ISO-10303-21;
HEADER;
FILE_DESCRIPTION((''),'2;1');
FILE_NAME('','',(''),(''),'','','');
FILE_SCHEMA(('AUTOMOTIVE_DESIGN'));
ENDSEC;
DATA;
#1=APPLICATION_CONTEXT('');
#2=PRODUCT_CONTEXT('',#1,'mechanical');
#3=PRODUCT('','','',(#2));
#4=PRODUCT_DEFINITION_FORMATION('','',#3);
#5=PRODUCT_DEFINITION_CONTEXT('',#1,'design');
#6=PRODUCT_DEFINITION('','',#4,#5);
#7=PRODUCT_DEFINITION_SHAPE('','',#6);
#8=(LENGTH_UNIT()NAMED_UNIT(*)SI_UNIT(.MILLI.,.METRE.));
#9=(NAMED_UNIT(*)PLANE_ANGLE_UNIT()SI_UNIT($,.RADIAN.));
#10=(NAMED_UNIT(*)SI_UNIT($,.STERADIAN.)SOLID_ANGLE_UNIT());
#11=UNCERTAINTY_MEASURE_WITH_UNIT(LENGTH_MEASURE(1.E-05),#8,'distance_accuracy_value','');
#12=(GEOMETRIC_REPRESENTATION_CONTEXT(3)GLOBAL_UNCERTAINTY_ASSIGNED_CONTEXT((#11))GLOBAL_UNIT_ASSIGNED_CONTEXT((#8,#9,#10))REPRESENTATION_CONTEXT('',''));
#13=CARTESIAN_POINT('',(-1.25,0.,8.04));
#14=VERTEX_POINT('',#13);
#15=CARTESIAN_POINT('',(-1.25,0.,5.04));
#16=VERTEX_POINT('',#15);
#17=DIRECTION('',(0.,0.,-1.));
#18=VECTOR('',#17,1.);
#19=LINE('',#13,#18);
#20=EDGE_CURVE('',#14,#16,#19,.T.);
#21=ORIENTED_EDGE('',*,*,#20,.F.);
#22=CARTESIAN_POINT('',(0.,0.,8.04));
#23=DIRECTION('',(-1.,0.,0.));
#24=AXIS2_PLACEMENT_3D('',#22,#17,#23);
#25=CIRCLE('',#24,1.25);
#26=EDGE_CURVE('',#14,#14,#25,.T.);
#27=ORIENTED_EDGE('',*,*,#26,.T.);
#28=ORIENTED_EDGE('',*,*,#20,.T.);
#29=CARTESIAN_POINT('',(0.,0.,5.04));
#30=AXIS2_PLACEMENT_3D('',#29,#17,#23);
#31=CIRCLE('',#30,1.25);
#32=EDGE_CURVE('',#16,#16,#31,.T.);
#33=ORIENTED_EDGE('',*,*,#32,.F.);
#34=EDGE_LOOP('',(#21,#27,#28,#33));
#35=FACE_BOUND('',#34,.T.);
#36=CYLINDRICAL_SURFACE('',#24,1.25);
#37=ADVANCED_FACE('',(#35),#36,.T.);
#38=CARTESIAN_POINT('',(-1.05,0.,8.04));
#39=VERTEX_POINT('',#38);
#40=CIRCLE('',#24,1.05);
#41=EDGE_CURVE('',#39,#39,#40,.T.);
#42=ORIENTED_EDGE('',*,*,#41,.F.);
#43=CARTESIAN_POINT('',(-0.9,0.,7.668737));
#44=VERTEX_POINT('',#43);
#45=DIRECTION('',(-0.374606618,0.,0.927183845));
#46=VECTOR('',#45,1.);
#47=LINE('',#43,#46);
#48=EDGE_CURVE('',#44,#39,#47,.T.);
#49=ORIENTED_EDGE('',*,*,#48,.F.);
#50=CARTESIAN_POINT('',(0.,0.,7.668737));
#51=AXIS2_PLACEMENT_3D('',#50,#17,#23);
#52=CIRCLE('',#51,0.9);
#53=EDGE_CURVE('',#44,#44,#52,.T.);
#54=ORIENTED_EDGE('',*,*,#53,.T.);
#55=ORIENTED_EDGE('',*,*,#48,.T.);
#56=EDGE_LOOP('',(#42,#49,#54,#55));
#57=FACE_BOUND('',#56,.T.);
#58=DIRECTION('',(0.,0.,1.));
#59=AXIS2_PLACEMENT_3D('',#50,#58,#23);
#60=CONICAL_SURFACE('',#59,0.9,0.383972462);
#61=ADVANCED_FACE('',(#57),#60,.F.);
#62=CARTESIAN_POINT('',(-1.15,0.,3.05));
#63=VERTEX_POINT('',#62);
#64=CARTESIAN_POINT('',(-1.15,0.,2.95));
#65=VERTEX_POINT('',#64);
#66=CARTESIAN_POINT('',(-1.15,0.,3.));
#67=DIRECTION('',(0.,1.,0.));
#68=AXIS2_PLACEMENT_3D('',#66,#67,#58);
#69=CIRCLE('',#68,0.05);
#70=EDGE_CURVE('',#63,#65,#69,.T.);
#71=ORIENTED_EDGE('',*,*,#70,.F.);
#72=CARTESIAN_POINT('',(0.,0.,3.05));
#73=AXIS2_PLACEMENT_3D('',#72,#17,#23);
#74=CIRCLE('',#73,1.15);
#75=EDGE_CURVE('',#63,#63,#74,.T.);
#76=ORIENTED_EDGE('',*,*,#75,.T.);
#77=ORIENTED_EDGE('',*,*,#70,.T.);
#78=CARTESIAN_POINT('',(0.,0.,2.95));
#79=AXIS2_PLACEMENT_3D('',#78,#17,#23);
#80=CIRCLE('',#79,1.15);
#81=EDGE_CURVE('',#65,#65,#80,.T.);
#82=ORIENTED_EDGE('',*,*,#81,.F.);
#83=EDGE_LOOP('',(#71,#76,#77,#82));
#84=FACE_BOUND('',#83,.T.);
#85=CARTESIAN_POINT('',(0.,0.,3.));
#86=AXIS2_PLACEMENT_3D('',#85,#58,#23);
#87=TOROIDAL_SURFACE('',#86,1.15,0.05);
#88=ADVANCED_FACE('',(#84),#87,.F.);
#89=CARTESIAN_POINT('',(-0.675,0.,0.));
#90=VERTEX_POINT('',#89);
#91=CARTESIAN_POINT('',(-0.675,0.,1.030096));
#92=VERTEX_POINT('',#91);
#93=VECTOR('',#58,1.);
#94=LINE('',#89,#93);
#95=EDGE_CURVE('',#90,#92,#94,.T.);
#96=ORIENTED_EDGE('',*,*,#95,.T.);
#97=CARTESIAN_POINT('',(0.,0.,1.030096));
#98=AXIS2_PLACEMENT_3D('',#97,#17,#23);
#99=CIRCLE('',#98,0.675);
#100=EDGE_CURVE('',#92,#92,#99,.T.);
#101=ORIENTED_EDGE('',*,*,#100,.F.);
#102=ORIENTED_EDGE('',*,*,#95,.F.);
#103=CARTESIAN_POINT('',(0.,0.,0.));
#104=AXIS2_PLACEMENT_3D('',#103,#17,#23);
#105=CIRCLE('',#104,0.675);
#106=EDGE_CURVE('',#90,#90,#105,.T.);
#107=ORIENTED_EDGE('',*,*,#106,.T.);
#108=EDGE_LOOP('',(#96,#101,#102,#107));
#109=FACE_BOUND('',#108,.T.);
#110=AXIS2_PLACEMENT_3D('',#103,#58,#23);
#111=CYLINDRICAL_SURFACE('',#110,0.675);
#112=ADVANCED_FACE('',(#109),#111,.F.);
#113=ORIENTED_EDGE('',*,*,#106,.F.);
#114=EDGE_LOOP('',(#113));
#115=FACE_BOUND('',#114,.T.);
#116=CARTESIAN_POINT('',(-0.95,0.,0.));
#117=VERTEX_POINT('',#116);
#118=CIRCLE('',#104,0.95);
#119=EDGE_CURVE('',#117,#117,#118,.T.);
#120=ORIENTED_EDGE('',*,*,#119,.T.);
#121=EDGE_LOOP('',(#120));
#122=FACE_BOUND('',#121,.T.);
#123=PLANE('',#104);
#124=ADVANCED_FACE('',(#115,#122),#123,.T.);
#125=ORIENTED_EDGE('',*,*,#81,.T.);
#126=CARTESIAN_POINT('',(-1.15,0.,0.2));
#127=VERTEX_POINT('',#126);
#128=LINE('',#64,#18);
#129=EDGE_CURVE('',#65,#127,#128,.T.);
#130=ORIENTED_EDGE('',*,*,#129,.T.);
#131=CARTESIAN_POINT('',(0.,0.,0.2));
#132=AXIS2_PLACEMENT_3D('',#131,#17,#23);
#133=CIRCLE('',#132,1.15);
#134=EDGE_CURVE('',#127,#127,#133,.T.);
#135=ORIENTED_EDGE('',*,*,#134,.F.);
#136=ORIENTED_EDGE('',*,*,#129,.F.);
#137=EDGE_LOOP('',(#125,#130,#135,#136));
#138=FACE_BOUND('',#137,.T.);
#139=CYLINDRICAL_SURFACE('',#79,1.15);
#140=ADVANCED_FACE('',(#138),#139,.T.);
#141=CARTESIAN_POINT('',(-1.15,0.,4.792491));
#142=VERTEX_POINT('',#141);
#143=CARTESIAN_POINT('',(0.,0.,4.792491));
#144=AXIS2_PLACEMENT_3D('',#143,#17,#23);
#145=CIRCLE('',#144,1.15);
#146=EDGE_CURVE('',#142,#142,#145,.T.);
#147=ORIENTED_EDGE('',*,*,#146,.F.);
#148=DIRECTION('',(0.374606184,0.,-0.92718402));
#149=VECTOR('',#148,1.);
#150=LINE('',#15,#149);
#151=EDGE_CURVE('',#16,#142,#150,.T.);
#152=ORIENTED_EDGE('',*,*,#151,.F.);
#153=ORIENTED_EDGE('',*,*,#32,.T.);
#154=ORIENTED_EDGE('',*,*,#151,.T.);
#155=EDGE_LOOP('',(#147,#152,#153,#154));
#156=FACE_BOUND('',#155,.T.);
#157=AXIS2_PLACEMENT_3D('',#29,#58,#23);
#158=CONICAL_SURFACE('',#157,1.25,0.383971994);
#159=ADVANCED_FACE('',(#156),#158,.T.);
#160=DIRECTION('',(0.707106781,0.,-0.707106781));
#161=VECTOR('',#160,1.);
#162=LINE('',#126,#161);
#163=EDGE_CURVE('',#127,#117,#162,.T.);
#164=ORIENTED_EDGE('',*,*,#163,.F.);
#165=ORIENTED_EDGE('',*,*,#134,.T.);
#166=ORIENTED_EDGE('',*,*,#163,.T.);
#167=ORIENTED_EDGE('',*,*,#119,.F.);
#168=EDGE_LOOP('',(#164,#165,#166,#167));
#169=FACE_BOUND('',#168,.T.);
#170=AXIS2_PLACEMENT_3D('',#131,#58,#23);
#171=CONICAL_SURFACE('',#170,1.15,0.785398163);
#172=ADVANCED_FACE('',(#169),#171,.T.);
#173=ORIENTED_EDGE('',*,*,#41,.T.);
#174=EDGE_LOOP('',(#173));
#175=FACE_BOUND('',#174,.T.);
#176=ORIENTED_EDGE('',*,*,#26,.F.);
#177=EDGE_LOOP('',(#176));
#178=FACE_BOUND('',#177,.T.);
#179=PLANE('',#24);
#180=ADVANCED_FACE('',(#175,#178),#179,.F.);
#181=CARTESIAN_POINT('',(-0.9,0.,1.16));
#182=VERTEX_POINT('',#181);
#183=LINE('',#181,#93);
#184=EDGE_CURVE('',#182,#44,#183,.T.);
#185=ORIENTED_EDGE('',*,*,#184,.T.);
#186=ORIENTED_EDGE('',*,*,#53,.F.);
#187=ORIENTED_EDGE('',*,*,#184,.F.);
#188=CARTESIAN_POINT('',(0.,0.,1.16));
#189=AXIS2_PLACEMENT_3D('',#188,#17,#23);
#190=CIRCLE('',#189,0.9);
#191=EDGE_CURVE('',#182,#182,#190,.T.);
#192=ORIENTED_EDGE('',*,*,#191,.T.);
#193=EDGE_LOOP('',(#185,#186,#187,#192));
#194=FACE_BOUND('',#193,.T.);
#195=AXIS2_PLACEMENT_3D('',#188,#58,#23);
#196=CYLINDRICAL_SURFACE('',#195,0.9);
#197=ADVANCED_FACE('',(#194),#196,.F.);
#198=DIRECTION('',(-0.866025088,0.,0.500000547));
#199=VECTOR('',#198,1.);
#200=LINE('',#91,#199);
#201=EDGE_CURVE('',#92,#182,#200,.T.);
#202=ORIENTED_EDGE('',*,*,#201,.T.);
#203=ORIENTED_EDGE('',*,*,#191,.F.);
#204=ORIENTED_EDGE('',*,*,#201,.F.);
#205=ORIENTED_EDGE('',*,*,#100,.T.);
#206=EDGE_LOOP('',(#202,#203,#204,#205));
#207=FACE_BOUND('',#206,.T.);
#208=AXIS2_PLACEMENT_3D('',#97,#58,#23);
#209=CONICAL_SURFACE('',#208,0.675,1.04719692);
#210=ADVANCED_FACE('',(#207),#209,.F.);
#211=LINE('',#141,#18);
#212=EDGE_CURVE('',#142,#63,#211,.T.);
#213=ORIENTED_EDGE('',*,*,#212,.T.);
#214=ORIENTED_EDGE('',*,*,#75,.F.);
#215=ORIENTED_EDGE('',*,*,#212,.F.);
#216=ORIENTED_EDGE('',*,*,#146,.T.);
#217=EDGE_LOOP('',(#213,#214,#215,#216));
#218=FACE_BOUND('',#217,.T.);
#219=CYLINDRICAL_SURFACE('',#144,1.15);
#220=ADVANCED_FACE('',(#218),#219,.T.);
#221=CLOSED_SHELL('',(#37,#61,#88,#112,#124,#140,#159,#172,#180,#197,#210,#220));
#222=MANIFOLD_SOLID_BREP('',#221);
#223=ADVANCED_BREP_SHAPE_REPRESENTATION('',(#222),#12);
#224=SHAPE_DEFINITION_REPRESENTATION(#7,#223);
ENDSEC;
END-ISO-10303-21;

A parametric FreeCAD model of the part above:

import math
import FreeCAD as App
import Part
import Sketcher

V = App.Vector
Q = App.Units.Quantity

doc = App.newDocument("Part")
body = doc.addObject("PartDesign::Body", "Body")

sketch1 = body.newObject("Sketcher::SketchObject", "Sketch")
sketch1.AttachmentSupport = (doc.getObject("XZ_Plane"), [""])
sketch1.MapMode = "FlatFace"
sketch1.addGeometry(Part.LineSegment(V(-0.9, 7.67, 0), V(-1.05, 8.04, 0)), False)
sketch1.addGeometry(Part.LineSegment(V(-1.05, 8.04, 0), V(-1.25, 8.04, 0)), False)
sketch1.addGeometry(Part.LineSegment(V(-1.25, 8.04, 0), V(-1.25, 5.04, 0)), False)
sketch1.addGeometry(Part.LineSegment(V(-1.25, 5.04, 0), V(-1.15, 4.79, 0)), False)
sketch1.addGeometry(Part.LineSegment(V(-1.15, 4.79, 0), V(-1.15, 3.05, 0)), False)
sketch1.addGeometry(Part.ArcOfCircle(Part.Circle(V(-1.15, 3, 0), V(0, 0, 1), 0.05), math.radians(-90), math.radians(90)), False)
sketch1.addGeometry(Part.LineSegment(V(-1.15, 2.95, 0), V(-1.15, 0.2, 0)), False)
sketch1.addGeometry(Part.LineSegment(V(-1.15, 0.2, 0), V(-0.95, 0, 0)), False)
sketch1.addGeometry(Part.LineSegment(V(-0.95, 0, 0), V(-0.68, 0, 0)), False)
sketch1.addGeometry(Part.LineSegment(V(-0.68, 0, 0), V(-0.68, 1.03, 0)), False)
sketch1.addGeometry(Part.LineSegment(V(-0.68, 1.03, 0), V(-0.9, 1.16, 0)), False)
sketch1.addGeometry(Part.LineSegment(V(-0.9, 1.16, 0), V(-0.9, 7.67, 0)), False)
sketch1.addConstraint(Sketcher.Constraint("Coincident", 0, 2, 1, 1))
sketch1.addConstraint(Sketcher.Constraint("Coincident", 1, 2, 2, 1))
sketch1.addConstraint(Sketcher.Constraint("Coincident", 2, 2, 3, 1))
sketch1.addConstraint(Sketcher.Constraint("Coincident", 3, 2, 4, 1))
sketch1.addConstraint(Sketcher.Constraint("Coincident", 4, 2, 5, 2))
sketch1.addConstraint(Sketcher.Constraint("Coincident", 5, 1, 6, 1))
sketch1.addConstraint(Sketcher.Constraint("Coincident", 6, 2, 7, 1))
sketch1.addConstraint(Sketcher.Constraint("Coincident", 7, 2, 8, 1))
sketch1.addConstraint(Sketcher.Constraint("Coincident", 8, 2, 9, 1))
sketch1.addConstraint(Sketcher.Constraint("Coincident", 9, 2, 10, 1))
sketch1.addConstraint(Sketcher.Constraint("Coincident", 10, 2, 11, 1))
sketch1.addConstraint(Sketcher.Constraint("Coincident", 11, 2, 0, 1))
sketch1.addConstraint(Sketcher.Constraint("Horizontal", 1))
sketch1.addConstraint(Sketcher.Constraint("Vertical", 2))
sketch1.addConstraint(Sketcher.Constraint("Vertical", 4))
sketch1.addConstraint(Sketcher.Constraint("Vertical", 6))
sketch1.addConstraint(Sketcher.Constraint("Horizontal", 8))
sketch1.addConstraint(Sketcher.Constraint("Vertical", 9))
sketch1.addConstraint(Sketcher.Constraint("Vertical", 11))
sketch1.addConstraint(Sketcher.Constraint("PointOnObject", 7, 2, -1))
sketch1.addConstraint(Sketcher.Constraint("Parallel", 0, 3))
sketch1.addConstraint(Sketcher.Constraint("Vertical", 5, 3, 3, 2))
sketch1.addConstraint(Sketcher.Constraint("Vertical", 4, 2, 5, 1))
sketch1.addConstraint(Sketcher.Constraint("DistanceY", 2, 2, 2, 1, 3.0))
sketch1.addConstraint(Sketcher.Constraint("Angle", 0, Q("112.000002 deg")))
sketch1.addConstraint(Sketcher.Constraint("Angle", 7, Q("-45 deg")))
sketch1.addConstraint(Sketcher.Constraint("Radius", 5, 0.05))
sketch1.addConstraint(Sketcher.Constraint("DistanceX", 1, 2, 1, 1, 0.2))
sketch1.addConstraint(Sketcher.Constraint("DistanceY", -1, 1, 5, 3, 3.0))
sketch1.addConstraint(Sketcher.Constraint("DistanceY", 6, 2, 6, 1, 2.75))
sketch1.addConstraint(Sketcher.Constraint("DistanceX", 10, 2, -1, 1, 0.9))
sketch1.addConstraint(Sketcher.Constraint("DistanceX", 5, 3, 0, 2, 0.1))
sketch1.addConstraint(Sketcher.Constraint("DistanceX", 8, 1, 8, 2, 0.275))
sketch1.addConstraint(Sketcher.Constraint("DistanceX", 5, 3, -1, 1, 1.15))
sketch1.addConstraint(Sketcher.Constraint("DistanceY", -1, 1, 0, 2, 8.04))
sketch1.addConstraint(Sketcher.Constraint("DistanceY", -1, 1, 10, 2, 1.16))
sketch1.addConstraint(Sketcher.Constraint("DistanceY", 9, 1, 9, 2, 1.030096))
revolution = body.newObject("PartDesign::Revolution", "Revolution")
revolution.Profile = sketch1
revolution.ReferenceAxis = (sketch1, ["V_Axis"])
revolution.Angle = 360

doc.recompute()
